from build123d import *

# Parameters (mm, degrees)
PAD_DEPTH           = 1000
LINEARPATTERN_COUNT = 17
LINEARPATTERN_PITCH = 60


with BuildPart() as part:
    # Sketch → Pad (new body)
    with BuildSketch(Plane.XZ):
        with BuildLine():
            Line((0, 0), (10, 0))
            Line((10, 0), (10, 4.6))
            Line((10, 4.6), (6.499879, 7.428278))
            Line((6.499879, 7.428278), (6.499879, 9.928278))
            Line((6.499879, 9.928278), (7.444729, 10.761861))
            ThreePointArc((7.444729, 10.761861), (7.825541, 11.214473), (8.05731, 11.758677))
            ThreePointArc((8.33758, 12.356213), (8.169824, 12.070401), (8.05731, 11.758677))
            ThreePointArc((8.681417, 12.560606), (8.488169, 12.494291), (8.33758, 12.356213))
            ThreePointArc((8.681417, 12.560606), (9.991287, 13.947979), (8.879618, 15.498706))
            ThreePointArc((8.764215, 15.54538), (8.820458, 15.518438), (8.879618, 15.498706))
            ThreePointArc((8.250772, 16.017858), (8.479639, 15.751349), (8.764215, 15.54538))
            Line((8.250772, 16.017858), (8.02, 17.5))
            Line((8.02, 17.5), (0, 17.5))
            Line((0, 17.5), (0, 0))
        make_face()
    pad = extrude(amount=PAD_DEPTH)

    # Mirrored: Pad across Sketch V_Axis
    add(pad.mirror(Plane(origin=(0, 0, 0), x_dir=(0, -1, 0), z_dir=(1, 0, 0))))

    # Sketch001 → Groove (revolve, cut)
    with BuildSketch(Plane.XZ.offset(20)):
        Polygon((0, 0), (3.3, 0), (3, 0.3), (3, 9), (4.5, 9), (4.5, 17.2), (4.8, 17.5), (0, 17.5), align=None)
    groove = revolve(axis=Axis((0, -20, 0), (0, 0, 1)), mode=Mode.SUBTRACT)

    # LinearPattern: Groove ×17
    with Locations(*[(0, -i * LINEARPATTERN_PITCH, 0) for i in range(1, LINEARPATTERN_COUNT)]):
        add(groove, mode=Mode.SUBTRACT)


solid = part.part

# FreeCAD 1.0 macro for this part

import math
import FreeCAD as App
import Part
import Sketcher

V = App.Vector
Q = App.Units.Quantity


def add_polygon(sketch, points):
    """Adds a closed chain of lines whose ends are joined by coincident constraints."""
    first, n = sketch.GeometryCount, len(points)
    for a, b in zip(points, points[1:] + points[:1]):
        sketch.addGeometry(Part.LineSegment(App.Vector(*a, 0), App.Vector(*b, 0)), False)
    for i in range(n):
        sketch.addConstraint(Sketcher.Constraint("Coincident", first + i, 2, first + (i + 1) % n, 1))

doc = App.newDocument("Part")
body = doc.addObject("PartDesign::Body", "Body")

# Sketch on XZ plane
sketch1 = body.newObject("Sketcher::SketchObject", "Sketch")
sketch1.AttachmentSupport = (doc.getObject("XZ_Plane"), [""])
sketch1.MapMode = "FlatFace"
sketch1.addGeometry([
    Part.LineSegment(V(0, 0, 0), V(10, 0, 0)),  # 0
    Part.LineSegment(V(10, 0, 0), V(10, 4.6, 0)),  # 1
    Part.LineSegment(V(10, 4.6, 0), V(6.499879, 7.428278, 0)),  # 2
    Part.LineSegment(V(6.499879, 7.428278, 0), V(6.499879, 9.928278, 0)),  # 3
    Part.LineSegment(V(6.499879, 9.928278, 0), V(7.444729, 10.761861, 0)),  # 4
    Part.ArcOfCircle(Part.Circle(V(6.121574, 12.261625, 0), V(0, 0, 1), 2.000008), math.radians(-48.579895), math.radians(-14.56469)),  # 5
    Part.ArcOfCircle(Part.Circle(V(9.799463, 11.30603, 0), V(0, 0, 1), 1.799996), math.radians(144.307404), math.radians(165.435415)),  # 6
    Part.ArcOfCircle(Part.Circle(V(8.74366, 12.064494, 0), V(0, 0, 1), 0.500001), math.radians(97.15111), math.radians(144.3074)),  # 7
    Part.ArcOfCircle(Part.Circle(V(8.494689, 14.048938, 0), V(0, 0, 1), 1.5), math.radians(-82.848958), math.radians(75.130431)),  # 8
    Part.ArcOfCircle(Part.Circle(V(9.007944, 15.982003, 0), V(0, 0, 1), 0.500044), math.radians(-119.170894), math.radians(-104.870212)),  # 9
    Part.ArcOfCircle(Part.Circle(V(9.495351, 16.855126, 0), V(0, 0, 1), 1.499998), math.radians(-146.070018), math.radians(-119.171442)),  # 10
    Part.LineSegment(V(8.250772, 16.017858, 0), V(8.02, 17.5, 0)),  # 11
    Part.LineSegment(V(8.02, 17.5, 0), V(0, 17.5, 0)),  # 12
    Part.LineSegment(V(0, 17.5, 0), V(0, 0, 0)),  # 13
], False)
sketch1.addConstraint([
    Sketcher.Constraint("Coincident", 0, 2, 1, 1),
    Sketcher.Constraint("Coincident", 1, 2, 2, 1),
    Sketcher.Constraint("Coincident", 2, 2, 3, 1),
    Sketcher.Constraint("Coincident", 3, 2, 4, 1),
    Sketcher.Constraint("Coincident", 4, 2, 5, 1),
    Sketcher.Constraint("Coincident", 5, 2, 6, 2),
    Sketcher.Constraint("Coincident", 6, 1, 7, 2),
    Sketcher.Constraint("Coincident", 7, 1, 8, 1),
    Sketcher.Constraint("Coincident", 8, 2, 9, 2),
    Sketcher.Constraint("Coincident", 9, 1, 10, 2),
    Sketcher.Constraint("Coincident", 10, 1, 11, 1),
    Sketcher.Constraint("Coincident", 11, 2, 12, 1),
    Sketcher.Constraint("Coincident", 12, 2, 13, 1),
    Sketcher.Constraint("Coincident", 13, 2, 0, 1),
    Sketcher.Constraint("Horizontal", 0),
    Sketcher.Constraint("Vertical", 1),
    Sketcher.Constraint("Vertical", 3),
    Sketcher.Constraint("Horizontal", 12),
    Sketcher.Constraint("Vertical", 13),
    Sketcher.Constraint("Coincident", 13, 2, -1, 1),
    Sketcher.Constraint("Radius", 7, Q("0.500001 mm")),
    Sketcher.Constraint("Radius", 8, Q("1.5 mm")),
    Sketcher.Constraint("DistanceX", 0, 1, 0, 2, Q("10 mm")),
    Sketcher.Constraint("DistanceY", 1, 1, 1, 2, Q("4.6 mm")),
    Sketcher.Constraint("DistanceY", 3, 1, 3, 2, Q("2.5 mm")),
    Sketcher.Constraint("DistanceY", 13, 2, 13, 1, Q("17.5 mm")),
    Sketcher.Constraint("Distance", 2, Q("4.5 mm")),
    Sketcher.Constraint("Distance", 11, Q("1.5 mm")),
    Sketcher.Constraint("DistanceX", 12, 2, 12, 1, Q("8.02 mm")),
    Sketcher.Constraint("Distance", 4, Q("1.260001 mm")),
    Sketcher.Constraint("Radius", 5, Q("2.000008 mm")),
    Sketcher.Constraint("Radius", 6, Q("1.799996 mm")),
    Sketcher.Constraint("Radius", 9, Q("0.500044 mm")),
    Sketcher.Constraint("Radius", 10, Q("1.499998 mm")),
    Sketcher.Constraint("DistanceY", 5, 3, 10, 3, Q("4.593501 mm")),
    Sketcher.Constraint("DistanceX", 7, 1, 8, 2, Q("0.198201 mm")),
    Sketcher.Constraint("DistanceY", 7, 1, 8, 2, Q("2.9381 mm")),
    Sketcher.Constraint("DistanceX", 7, 1, 9, 1, Q("0.082798 mm")),
    Sketcher.Constraint("DistanceY", -1, 1, 6, 3, Q("11.30603 mm")),
    Sketcher.Constraint("DistanceX", -1, 1, 7, 3, Q("8.74366 mm")),
    Sketcher.Constraint("DistanceX", -1, 1, 8, 3, Q("8.494689 mm")),
    Sketcher.Constraint("DistanceX", -1, 1, 10, 3, Q("9.495351 mm")),
    Sketcher.Constraint("DistanceX", -1, 1, 2, 2, Q("6.499879 mm")),
    Sketcher.Constraint("DistanceX", -1, 1, 4, 2, Q("7.444729 mm")),
    Sketcher.Constraint("DistanceX", -1, 1, 5, 2, Q("8.05731 mm")),
    Sketcher.Constraint("DistanceX", -1, 1, 6, 1, Q("8.33758 mm")),
    Sketcher.Constraint("DistanceY", -1, 1, 9, 1, Q("15.54538 mm")),
])
pad1 = body.newObject("PartDesign::Pad", "Pad")
pad1.Profile = sketch1
pad1.Length = 1000
doc.recompute()

mirrored = body.newObject("PartDesign::Mirrored", "Mirrored")
mirrored.Originals = [pad1]
mirrored.MirrorPlane = (doc.getObject("YZ_Plane"), [""])
body.Tip = mirrored

# Sketch on XZ plane
sketch2 = body.newObject("Sketcher::SketchObject", "Sketch001")
sketch2.AttachmentSupport = (doc.getObject("XZ_Plane"), [""])
sketch2.MapMode = "FlatFace"
sketch2.AttachmentOffset = App.Placement(V(0, 0, 20), App.Rotation())
add_polygon(sketch2, [(0, 0), (3.3, 0), (3, 0.3), (3, 9), (4.5, 9), (4.5, 17.2), (4.8, 17.5), (0, 17.5)])  # lines 0-7
sketch2.addConstraint([
    Sketcher.Constraint("Horizontal", 0),
    Sketcher.Constraint("Vertical", 2),
    Sketcher.Constraint("Horizontal", 3),
    Sketcher.Constraint("Vertical", 4),
    Sketcher.Constraint("Horizontal", 6),
    Sketcher.Constraint("Vertical", 7),
    Sketcher.Constraint("Coincident", 7, 2, -1, 1),
    Sketcher.Constraint("Perpendicular", 1, 5),
    Sketcher.Constraint("Equal", 1, 5),
    Sketcher.Constraint("Angle", 1, Q("135 deg")),
    Sketcher.Constraint("DistanceX", 0, 1, 0, 2, Q("3.3 mm")),
    Sketcher.Constraint("DistanceX", 3, 1, 3, 2, Q("1.5 mm")),
    Sketcher.Constraint("DistanceY", 2, 1, 2, 2, Q("8.7 mm")),
    Sketcher.Constraint("DistanceY", 4, 1, 4, 2, Q("8.2 mm")),
    Sketcher.Constraint("DistanceY", 7, 2, 7, 1, Q("17.5 mm")),
])
groove = body.newObject("PartDesign::Groove", "Groove")
groove.Profile = sketch2
groove.ReferenceAxis = (sketch2, ["V_Axis"])
groove.Angle = 360
doc.recompute()

linearpattern = body.newObject("PartDesign::LinearPattern", "LinearPattern")
linearpattern.Originals = [groove]
linearpattern.Direction = (doc.getObject("Y_Axis"), [""])
linearpattern.Mode = "offset"
linearpattern.Offset = 60
linearpattern.Occurrences = 17
linearpattern.Reversed = True
body.Tip = linearpattern

doc.recompute()
